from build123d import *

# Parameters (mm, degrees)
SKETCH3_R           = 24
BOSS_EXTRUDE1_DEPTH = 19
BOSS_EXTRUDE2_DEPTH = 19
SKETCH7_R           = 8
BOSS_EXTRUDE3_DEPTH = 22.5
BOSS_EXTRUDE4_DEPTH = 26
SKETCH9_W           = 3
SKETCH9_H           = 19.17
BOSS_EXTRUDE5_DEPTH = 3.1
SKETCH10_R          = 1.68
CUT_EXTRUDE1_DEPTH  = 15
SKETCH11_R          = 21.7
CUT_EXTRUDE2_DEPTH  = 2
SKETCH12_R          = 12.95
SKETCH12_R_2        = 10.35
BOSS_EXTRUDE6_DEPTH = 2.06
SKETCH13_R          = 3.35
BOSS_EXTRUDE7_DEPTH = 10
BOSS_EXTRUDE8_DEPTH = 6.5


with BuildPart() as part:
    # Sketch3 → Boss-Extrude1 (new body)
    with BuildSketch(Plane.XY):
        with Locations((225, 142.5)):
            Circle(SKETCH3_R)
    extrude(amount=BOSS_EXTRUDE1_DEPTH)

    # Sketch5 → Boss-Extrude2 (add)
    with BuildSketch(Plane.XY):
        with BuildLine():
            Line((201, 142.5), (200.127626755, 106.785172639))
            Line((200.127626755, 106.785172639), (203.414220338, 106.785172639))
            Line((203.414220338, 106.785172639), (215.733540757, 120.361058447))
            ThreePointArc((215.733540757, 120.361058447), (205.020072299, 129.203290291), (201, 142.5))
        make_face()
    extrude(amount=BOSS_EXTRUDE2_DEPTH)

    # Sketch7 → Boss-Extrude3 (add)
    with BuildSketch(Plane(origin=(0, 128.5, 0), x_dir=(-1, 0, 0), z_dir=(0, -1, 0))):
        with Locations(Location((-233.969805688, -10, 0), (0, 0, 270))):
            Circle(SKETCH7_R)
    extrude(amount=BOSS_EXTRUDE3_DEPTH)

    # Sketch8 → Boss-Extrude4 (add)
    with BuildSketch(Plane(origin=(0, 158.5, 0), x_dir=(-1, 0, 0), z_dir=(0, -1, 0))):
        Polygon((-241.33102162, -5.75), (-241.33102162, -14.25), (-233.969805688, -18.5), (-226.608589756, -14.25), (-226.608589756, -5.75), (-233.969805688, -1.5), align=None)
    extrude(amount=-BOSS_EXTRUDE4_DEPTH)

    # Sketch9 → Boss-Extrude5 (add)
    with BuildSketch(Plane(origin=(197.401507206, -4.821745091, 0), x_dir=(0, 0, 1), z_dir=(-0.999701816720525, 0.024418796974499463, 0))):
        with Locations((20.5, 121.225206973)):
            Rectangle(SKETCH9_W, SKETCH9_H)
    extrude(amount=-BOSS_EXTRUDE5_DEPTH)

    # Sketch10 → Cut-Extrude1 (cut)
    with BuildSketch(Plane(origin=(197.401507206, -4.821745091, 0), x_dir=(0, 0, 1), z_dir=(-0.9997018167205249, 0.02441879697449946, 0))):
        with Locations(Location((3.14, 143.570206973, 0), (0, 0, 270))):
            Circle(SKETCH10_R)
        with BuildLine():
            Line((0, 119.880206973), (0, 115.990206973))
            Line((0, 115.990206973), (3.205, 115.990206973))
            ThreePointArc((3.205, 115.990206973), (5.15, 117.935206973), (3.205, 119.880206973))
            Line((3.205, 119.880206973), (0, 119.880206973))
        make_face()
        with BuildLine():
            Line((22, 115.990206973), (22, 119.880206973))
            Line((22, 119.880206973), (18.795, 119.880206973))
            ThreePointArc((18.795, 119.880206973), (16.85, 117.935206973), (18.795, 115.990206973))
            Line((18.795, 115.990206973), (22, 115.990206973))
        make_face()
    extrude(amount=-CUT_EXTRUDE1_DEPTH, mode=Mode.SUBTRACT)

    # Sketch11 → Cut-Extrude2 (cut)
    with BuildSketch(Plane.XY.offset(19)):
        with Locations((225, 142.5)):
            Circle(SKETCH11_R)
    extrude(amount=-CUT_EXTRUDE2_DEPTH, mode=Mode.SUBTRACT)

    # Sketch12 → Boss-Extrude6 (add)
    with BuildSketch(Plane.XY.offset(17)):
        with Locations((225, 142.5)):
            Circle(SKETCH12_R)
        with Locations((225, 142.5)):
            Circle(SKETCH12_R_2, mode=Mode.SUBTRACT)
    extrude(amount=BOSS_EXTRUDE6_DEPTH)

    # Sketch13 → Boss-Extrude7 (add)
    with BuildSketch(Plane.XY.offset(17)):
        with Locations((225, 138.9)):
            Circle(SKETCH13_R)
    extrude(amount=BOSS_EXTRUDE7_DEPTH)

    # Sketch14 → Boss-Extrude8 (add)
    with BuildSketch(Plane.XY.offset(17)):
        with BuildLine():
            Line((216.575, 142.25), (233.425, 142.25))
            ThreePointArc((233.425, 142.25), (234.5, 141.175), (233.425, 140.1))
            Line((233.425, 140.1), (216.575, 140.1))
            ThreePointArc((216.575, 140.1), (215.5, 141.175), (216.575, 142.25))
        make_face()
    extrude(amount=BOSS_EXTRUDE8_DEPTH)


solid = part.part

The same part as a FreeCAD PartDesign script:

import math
import FreeCAD as App
import Part
import Sketcher
from FreeCAD import Vector
Q = App.Units.Quantity


def add_polygon(sketch, points):
    """Adds a closed chain of lines whose ends are joined by coincident constraints."""
    first, n = sketch.GeometryCount, len(points)
    for a, b in zip(points, points[1:] + points[:1]):
        sketch.addGeometry(Part.LineSegment(App.Vector(*a, 0), App.Vector(*b, 0)), False)
    for i in range(n):
        sketch.addConstraint(Sketcher.Constraint("Coincident", first + i, 2, first + (i + 1) % n, 1))

doc = App.newDocument("Part")
body = doc.addObject("PartDesign::Body", "Body")

sketch1 = doc.addObject("Sketcher::SketchObject", "Sketch")
body.addObject(sketch1)
sketch1.AttachmentSupport = (doc.XY_Plane, [""])
sketch1.MapMode = "FlatFace"
sketch1.addGeometry(Part.Circle(Vector(225, 142, 0), Vector(0, 0, 1), 24), False)
sketch1.addConstraint(Sketcher.Constraint("Diameter", 0, 48.0))
sketch1.addConstraint(Sketcher.Constraint("DistanceX", -1, 1, 0, 3, 225.0))
sketch1.addConstraint(Sketcher.Constraint("DistanceY", -1, 1, 0, 3, 142.5))
pad1 = doc.addObject("PartDesign::Pad", "Pad")
body.addObject(pad1)
pad1.Profile = sketch1
pad1.Length = 19

sketch2 = doc.addObject("Sketcher::SketchObject", "Sketch001")
body.addObject(sketch2)
sketch2.AttachmentSupport = (doc.XY_Plane, [""])
sketch2.MapMode = "FlatFace"
sketch2.addGeometry(Part.LineSegment(Vector(201, 142.5, 0), Vector(200.1, 106.8, 0)), False)
sketch2.addGeometry(Part.LineSegment(Vector(200.1, 106.8, 0), Vector(203.4, 106.8, 0)), False)
sketch2.addGeometry(Part.LineSegment(Vector(203.4, 106.8, 0), Vector(215.7, 120.4, 0)), False)
sketch2.addGeometry(Part.ArcOfCircle(Part.Circle(Vector(225, 142.5, 0), Vector(0, 0, 1), 24), math.radians(180), math.radians(247)), False)
sketch2.addConstraint(Sketcher.Constraint("Coincident", 0, 2, 1, 1))
sketch2.addConstraint(Sketcher.Constraint("Coincident", 1, 2, 2, 1))
sketch2.addConstraint(Sketcher.Constraint("Coincident", 2, 2, 3, 2))
sketch2.addConstraint(Sketcher.Constraint("Coincident", 3, 1, 0, 1))
sketch2.addConstraint(Sketcher.Constraint("Horizontal", 1))
sketch2.addConstraint(Sketcher.Constraint("Radius", 3, 24.0))
sketch2.addConstraint(Sketcher.Constraint("DistanceX", -1, 1, 3, 3, 225.0))
sketch2.addConstraint(Sketcher.Constraint("DistanceY", -1, 1, 3, 3, 142.5))
sketch2.addConstraint(Sketcher.Constraint("DistanceY", -1, 1, 3, 1, 142.5))
sketch2.addConstraint(Sketcher.Constraint("Distance", 0, 35.72548))
sketch2.addConstraint(Sketcher.Constraint("Distance", 2, 18.332221))
sketch2.addConstraint(Sketcher.Constraint("DistanceX", 1, 1, 1, 2, 3.286594))
sketch2.addConstraint(Sketcher.Constraint("DistanceX", -1, 1, 1, 2, 203.41422))
pad2 = doc.addObject("PartDesign::Pad", "Pad001")
body.addObject(pad2)
pad2.Profile = sketch2
pad2.Length = 19

sketch3 = doc.addObject("Sketcher::SketchObject", "Sketch002")
body.addObject(sketch3)
sketch3.AttachmentSupport = (doc.XZ_Plane, [""])
sketch3.MapMode = "FlatFace"
sketch3.AttachmentOffset = App.Placement(Vector(0, 0, -128.5), App.Rotation())
sketch3.addGeometry(Part.Circle(Vector(234, 10, 0), Vector(0, 0, 1), 8), False)
sketch3.addConstraint(Sketcher.Constraint("Diameter", 0, 16.0))
sketch3.addConstraint(Sketcher.Constraint("DistanceY", -1, 1, 0, 3, 10.0))
sketch3.addConstraint(Sketcher.Constraint("DistanceX", -1, 1, 0, 3, 233.969806))
pad3 = doc.addObject("PartDesign::Pad", "Pad002")
body.addObject(pad3)
pad3.Profile = sketch3
pad3.Length = 22.5

sketch4 = doc.addObject("Sketcher::SketchObject", "Sketch003")
body.addObject(sketch4)
sketch4.AttachmentSupport = (doc.XZ_Plane, [""])
sketch4.MapMode = "FlatFace"
sketch4.AttachmentOffset = App.Placement(Vector(0, 0, -158.5), App.Rotation())
add_polygon(sketch4, [(241, 6), (241, 14), (234, 18), (227, 14), (227, 6), (234, 2)])
sketch4.addConstraint(Sketcher.Constraint("Vertical", 0))
sketch4.addConstraint(Sketcher.Constraint("Vertical", 3))
sketch4.addConstraint(Sketcher.Constraint("Parallel", 1, 4))
sketch4.addConstraint(Sketcher.Constraint("Parallel", 2, 5))
sketch4.addConstraint(Sketcher.Constraint("Horizontal", 0, 2, 2, 2))
sketch4.addConstraint(Sketcher.Constraint("Horizontal", 3, 2, 5, 2))
sketch4.addConstraint(Sketcher.Constraint("Vertical", 1, 2, 4, 2))
sketch4.addConstraint(Sketcher.Constraint("Angle", 1, Q("150 deg")))
sketch4.addConstraint(Sketcher.Constraint("DistanceY", 0, 1, 0, 2, 8.5))
sketch4.addConstraint(Sketcher.Constraint("DistanceY", 4, 2, 1, 2, 17.0))
sketch4.addConstraint(Sketcher.Constraint("DistanceY", -1, 1, 1, 2, 18.5))
sketch4.addConstraint(Sketcher.Constraint("DistanceX", -1, 1, 0, 2, 241.331022))
pad4 = doc.addObject("PartDesign::Pad", "Pad003")
body.addObject(pad4)
pad4.Profile = sketch4
pad4.Length = 26
pad4.Reversed = True

sketch5 = doc.addObject("Sketcher::SketchObject", "Sketch004")
body.addObject(sketch5)
sketch5.Placement = App.Placement(Vector(197.401507, -4.821745, 0), App.Rotation(Vector(0, 0, 1), Vector(0.024418797, 0.999701817, 0), Vector(-0.999701817, 0.024418797, 0), "ZXY"))
add_polygon(sketch5, [(19, 130.8), (19, 111.6), (22, 111.6), (22, 130.8)])
sketch5.addConstraint(Sketcher.Constraint("Vertical", 0))
sketch5.addConstraint(Sketcher.Constraint("Horizontal", 1))
sketch5.addConstraint(Sketcher.Constraint("Vertical", 2))
sketch5.addConstraint(Sketcher.Constraint("Horizontal", 3))
sketch5.addConstraint(Sketcher.Constraint("DistanceX", 1, 1, 1, 2, 3.0))
sketch5.addConstraint(Sketcher.Constraint("DistanceX", -1, 1, 0, 2, 19.0))
sketch5.addConstraint(Sketcher.Constraint("DistanceY", 0, 2, 0, 1, 19.17))
sketch5.addConstraint(Sketcher.Constraint("DistanceY", -1, 1, 0, 2, 111.640207))
pad5 = doc.addObject("PartDesign::Pad", "Pad004")
body.addObject(pad5)
pad5.Profile = sketch5
pad5.Length = 3.1
pad5.Reversed = True

sketch6 = doc.addObject("Sketcher::SketchObject", "Sketch005")
body.addObject(sketch6)
sketch6.Placement = App.Placement(Vector(197.401507, -4.821745, 0), App.Rotation(Vector(0, 0, 1), Vector(0.024418797, 0.999701817, 0), Vector(-0.999701817, 0.024418797, 0), "ZXY"))
sketch6.addGeometry(Part.Circle(Vector(3.1, 143.6, 0), Vector(0, 0, 1), 1.7), False)
sketch6.addGeometry(Part.LineSegment(Vector(0, 119.9, 0), Vector(0, 116, 0)), False)
sketch6.addGeometry(Part.LineSegment(Vector(0, 116, 0), Vector(3.2, 116, 0)), False)
sketch6.addGeometry(Part.ArcOfCircle(Part.Circle(Vector(3.2, 117.9, 0), Vector(0, 0, 1), 1.9), math.radians(-90), math.radians(90)), False)
sketch6.addGeometry(Part.LineSegment(Vector(3.2, 119.9, 0), Vector(0, 119.9, 0)), False)
sketch6.addGeometry(Part.LineSegment(Vector(22, 116, 0), Vector(22, 119.9, 0)), False)
sketch6.addGeometry(Part.LineSegment(Vector(22, 119.9, 0), Vector(18.8, 119.9, 0)), False)
sketch6.addGeometry(Part.ArcOfCircle(Part.Circle(Vector(18.8, 117.9, 0), Vector(0, 0, 1), 1.9), math.radians(90), math.radians(270)), False)
sketch6.addGeometry(Part.LineSegment(Vector(18.8, 116, 0), Vector(22, 116, 0)), False)
sketch6.addConstraint(Sketcher.Constraint("Coincident", 1, 2, 2, 1))
sketch6.addConstraint(Sketcher.Constraint("Tangent", 2, 2, 3, 1))
sketch6.addConstraint(Sketcher.Constraint("Tangent", 3, 2, 4, 1))
sketch6.addConstraint(Sketcher.Constraint("Coincident", 4, 2, 1, 1))
sketch6.addConstraint(Sketcher.Constraint("Coincident", 5, 2, 6, 1))
sketch6.addConstraint(Sketcher.Constraint("Tangent", 6, 2, 7, 1))
sketch6.addConstraint(Sketcher.Constraint("Tangent", 7, 2, 8, 1))
sketch6.addConstraint(Sketcher.Constraint("Coincident", 8, 2, 5, 1))
sketch6.addConstraint(Sketcher.Constraint("Vertical", 1))
sketch6.addConstraint(Sketcher.Constraint("Horizontal", 2))
sketch6.addConstraint(Sketcher.Constraint("Horizontal", 4))
sketch6.addConstraint(Sketcher.Constraint("Vertical", 5))
sketch6.addConstraint(Sketcher.Constraint("Horizontal", 6))
sketch6.addConstraint(Sketcher.Constraint("Horizontal", 8))
sketch6.addConstraint(Sketcher.Constraint("Equal", 3, 7))
sketch6.addConstraint(Sketcher.Constraint("PointOnObject", 1, 2, -2))
sketch6.addConstraint(Sketcher.Constraint("Horizontal", 3, 3, 7, 3))
sketch6.addConstraint(Sketcher.Constraint("Equal", 4, 6))
sketch6.addConstraint(Sketcher.Constraint("Diameter", 0, 3.36))
sketch6.addConstraint(Sketcher.Constraint("DistanceX", -1, 1, 5, 2, 22.0))
sketch6.addConstraint(Sketcher.Constraint("Radius", 3, 1.945))
sketch6.addConstraint(Sketcher.Constraint("DistanceX", 2, 1, 2, 2, 3.205))
sketch6.addConstraint(Sketcher.Constraint("DistanceX", -1, 1, 0, 3, 3.14))
sketch6.addConstraint(Sketcher.Constraint("DistanceY", 1, 2, 0, 3, 27.58))
sketch6.addConstraint(Sketcher.Constraint("DistanceY", -1, 1, 0, 3, 143.570207))
pocket1 = doc.addObject("PartDesign::Pocket", "Pocket")
body.addObject(pocket1)
pocket1.Profile = sketch6
pocket1.Length = 15

sketch7 = doc.addObject("Sketcher::SketchObject", "Sketch006")
body.addObject(sketch7)
sketch7.AttachmentSupport = (doc.XY_Plane, [""])
sketch7.MapMode = "FlatFace"
sketch7.AttachmentOffset = App.Placement(Vector(0, 0, 19), App.Rotation())
sketch7.addGeometry(Part.Circle(Vector(225, 142, 0), Vector(0, 0, 1), 22), False)
sketch7.addConstraint(Sketcher.Constraint("Diameter", 0, 43.4))
sketch7.addConstraint(Sketcher.Constraint("DistanceX", -1, 1, 0, 3, 225.0))
sketch7.addConstraint(Sketcher.Constraint("DistanceY", -1, 1, 0, 3, 142.5))
pocket2 = doc.addObject("PartDesign::Pocket", "Pocket001")
body.addObject(pocket2)
pocket2.Profile = sketch7
pocket2.Length = 2

sketch8 = doc.addObject("Sketcher::SketchObject", "Sketch007")
body.addObject(sketch8)
sketch8.AttachmentSupport = (doc.XY_Plane, [""])
sketch8.MapMode = "FlatFace"
sketch8.AttachmentOffset = App.Placement(Vector(0, 0, 17), App.Rotation())
sketch8.addGeometry(Part.Circle(Vector(225, 142, 0), Vector(0, 0, 1), 13), False)
sketch8.addGeometry(Part.Circle(Vector(225, 142, 0), Vector(0, 0, 1), 10), False)
sketch8.addConstraint(Sketcher.Constraint("Coincident", 1, 3, 0, 3))
sketch8.addConstraint(Sketcher.Constraint("Diameter", 0, 25.9))
sketch8.addConstraint(Sketcher.Constraint("Diameter", 1, 20.7))
sketch8.addConstraint(Sketcher.Constraint("DistanceX", -1, 1, 0, 3, 225.0))
sketch8.addConstraint(Sketcher.Constraint("DistanceY", -1, 1, 0, 3, 142.5))
pad6 = doc.addObject("PartDesign::Pad", "Pad005")
body.addObject(pad6)
pad6.Profile = sketch8
pad6.Length = 2.06

sketch9 = doc.addObject("Sketcher::SketchObject", "Sketch008")
body.addObject(sketch9)
sketch9.AttachmentSupport = (doc.XY_Plane, [""])
sketch9.MapMode = "FlatFace"
sketch9.AttachmentOffset = App.Placement(Vector(0, 0, 17), App.Rotation())
sketch9.addGeometry(Part.Circle(Vector(225, 138.9, 0), Vector(0, 0, 1), 3.4), False)
sketch9.addConstraint(Sketcher.Constraint("Diameter", 0, 6.7))
sketch9.addConstraint(Sketcher.Constraint("DistanceX", -1, 1, 0, 3, 225.0))
sketch9.addConstraint(Sketcher.Constraint("DistanceY", -1, 1, 0, 3, 138.9))
pad7 = doc.addObject("PartDesign::Pad", "Pad006")
body.addObject(pad7)
pad7.Profile = sketch9
pad7.Length = 10

sketch10 = doc.addObject("Sketcher::SketchObject", "Sketch009")
body.addObject(sketch10)
sketch10.AttachmentSupport = (doc.XY_Plane, [""])
sketch10.MapMode = "FlatFace"
sketch10.AttachmentOffset = App.Placement(Vector(0, 0, 17), App.Rotation())
sketch10.addGeometry(Part.LineSegment(Vector(233.4, 142.2, 0), Vector(216.6, 142.2, 0)), False)
sketch10.addGeometry(Part.ArcOfCircle(Part.Circle(Vector(216.6, 141.2, 0), Vector(0, 0, 1), 1.1), math.radians(90), math.radians(270)), False)
sketch10.addGeometry(Part.LineSegment(Vector(216.6, 140.1, 0), Vector(233.4, 140.1, 0)), False)
sketch10.addGeometry(Part.ArcOfCircle(Part.Circle(Vector(233.4, 141.2, 0), Vector(0, 0, 1), 1.1), math.radians(-90), math.radians(90)), False)
sketch10.addConstraint(Sketcher.Constraint("Tangent", 0, 2, 1, 1))
sketch10.addConstraint(Sketcher.Constraint("Tangent", 1, 2, 2, 1))
sketch10.addConstraint(Sketcher.Constraint("Tangent", 2, 2, 3, 1))
sketch10.addConstraint(Sketcher.Constraint("Tangent", 3, 2, 0, 1))
sketch10.addConstraint(Sketcher.Constraint("Horizontal", 0))
sketch10.addConstraint(Sketcher.Constraint("Horizontal", 2))
sketch10.addConstraint(Sketcher.Constraint("Radius", 1, 1.075))
sketch10.addConstraint(Sketcher.Constraint("DistanceX", 0, 2, 0, 1, 16.85))
sketch10.addConstraint(Sketcher.Constraint("DistanceY", -1, 1, 1, 2, 140.1))
sketch10.addConstraint(Sketcher.Constraint("DistanceX", -1, 1, 1, 3, 216.575))
pad8 = doc.addObject("PartDesign::Pad", "Pad007")
body.addObject(pad8)
pad8.Profile = sketch10
pad8.Length = 6.5

doc.recompute()
